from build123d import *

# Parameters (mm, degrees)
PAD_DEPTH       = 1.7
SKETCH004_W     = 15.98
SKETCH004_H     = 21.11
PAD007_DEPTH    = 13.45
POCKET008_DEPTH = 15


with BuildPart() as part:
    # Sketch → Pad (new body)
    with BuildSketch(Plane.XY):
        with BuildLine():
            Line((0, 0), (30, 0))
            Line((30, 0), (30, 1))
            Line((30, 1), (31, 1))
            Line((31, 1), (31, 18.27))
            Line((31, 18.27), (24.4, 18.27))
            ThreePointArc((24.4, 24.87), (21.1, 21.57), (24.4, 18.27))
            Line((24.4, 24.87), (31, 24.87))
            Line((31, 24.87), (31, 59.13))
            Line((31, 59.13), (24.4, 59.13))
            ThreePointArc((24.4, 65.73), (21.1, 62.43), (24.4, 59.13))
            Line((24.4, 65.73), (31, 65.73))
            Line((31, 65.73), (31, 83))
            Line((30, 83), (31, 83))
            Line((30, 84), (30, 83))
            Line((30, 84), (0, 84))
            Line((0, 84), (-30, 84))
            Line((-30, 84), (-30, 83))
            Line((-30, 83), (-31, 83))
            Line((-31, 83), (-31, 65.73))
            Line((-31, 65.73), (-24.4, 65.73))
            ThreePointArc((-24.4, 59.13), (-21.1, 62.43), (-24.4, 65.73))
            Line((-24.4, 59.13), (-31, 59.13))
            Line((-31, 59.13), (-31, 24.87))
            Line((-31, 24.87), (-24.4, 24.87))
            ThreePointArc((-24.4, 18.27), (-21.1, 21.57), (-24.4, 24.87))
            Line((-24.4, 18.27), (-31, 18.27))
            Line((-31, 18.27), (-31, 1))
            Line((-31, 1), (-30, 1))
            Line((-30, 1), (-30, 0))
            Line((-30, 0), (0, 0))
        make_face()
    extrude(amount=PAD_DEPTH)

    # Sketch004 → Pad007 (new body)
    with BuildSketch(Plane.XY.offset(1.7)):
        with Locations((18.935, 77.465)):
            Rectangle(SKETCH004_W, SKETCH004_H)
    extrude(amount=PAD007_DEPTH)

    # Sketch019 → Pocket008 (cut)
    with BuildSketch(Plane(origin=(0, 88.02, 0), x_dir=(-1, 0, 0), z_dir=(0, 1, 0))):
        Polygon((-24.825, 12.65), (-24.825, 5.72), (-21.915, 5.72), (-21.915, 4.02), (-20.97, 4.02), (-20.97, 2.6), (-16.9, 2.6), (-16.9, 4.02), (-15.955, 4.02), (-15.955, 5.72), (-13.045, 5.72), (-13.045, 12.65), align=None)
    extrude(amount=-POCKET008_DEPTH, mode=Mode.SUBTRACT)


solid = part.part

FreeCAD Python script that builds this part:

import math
import FreeCAD as App
import Part
import Sketcher

V = App.Vector
Q = App.Units.Quantity


def add_polygon(sketch, points):
    """Adds a closed chain of lines whose ends are joined by coincident constraints."""
    first, n = sketch.GeometryCount, len(points)
    for a, b in zip(points, points[1:] + points[:1]):
        sketch.addGeometry(Part.LineSegment(App.Vector(*a, 0), App.Vector(*b, 0)), False)
    for i in range(n):
        sketch.addConstraint(Sketcher.Constraint("Coincident", first + i, 2, first + (i + 1) % n, 1))

doc = App.newDocument("Part")
body = doc.addObject("PartDesign::Body", "Body")

# Sketch on XY plane
sketch1 = doc.addObject("Sketcher::SketchObject", "Sketch")
body.addObject(sketch1)
sketch1.AttachmentSupport = (doc.XY_Plane, [""])
sketch1.MapMode = "FlatFace"
sketch1.addGeometry([
    Part.LineSegment(V(30, 0, 0), V(30, 1, 0)),  # 0
    Part.LineSegment(V(30, 1, 0), V(31, 1, 0)),  # 1
    Part.LineSegment(V(31, 1, 0), V(31, 18.3, 0)),  # 2
    Part.LineSegment(V(31, 18.3, 0), V(24.4, 18.3, 0)),  # 3
    Part.ArcOfCircle(Part.Circle(V(24.4, 21.6, 0), V(0, 0, 1), 3.3), math.radians(90), math.radians(270)),  # 4
    Part.LineSegment(V(24.4, 24.9, 0), V(31, 24.9, 0)),  # 5
    Part.LineSegment(V(31, 24.9, 0), V(31, 59.1, 0)),  # 6
    Part.LineSegment(V(31, 59.1, 0), V(24.4, 59.1, 0)),  # 7
    Part.ArcOfCircle(Part.Circle(V(24.4, 62.4, 0), V(0, 0, 1), 3.3), math.radians(90), math.radians(270)),  # 8
    Part.LineSegment(V(24.4, 65.7, 0), V(31, 65.7, 0)),  # 9
    Part.LineSegment(V(31, 65.7, 0), V(31, 83, 0)),  # 10
    Part.LineSegment(V(31, 83, 0), V(30, 83, 0)),  # 11
    Part.LineSegment(V(30, 83, 0), V(30, 84, 0)),  # 12
    Part.LineSegment(V(30, 84, 0), V(-30, 84, 0)),  # 13
    Part.LineSegment(V(-30, 84, 0), V(-30, 83, 0)),  # 14
    Part.LineSegment(V(-30, 83, 0), V(-31, 83, 0)),  # 15
    Part.LineSegment(V(-31, 83, 0), V(-31, 65.7, 0)),  # 16
    Part.LineSegment(V(-31, 65.7, 0), V(-24.4, 65.7, 0)),  # 17
    Part.ArcOfCircle(Part.Circle(V(-24.4, 62.4, 0), V(0, 0, 1), 3.3), math.radians(-90), math.radians(90)),  # 18
    Part.LineSegment(V(-24.4, 59.1, 0), V(-31, 59.1, 0)),  # 19
    Part.LineSegment(V(-31, 59.1, 0), V(-31, 24.9, 0)),  # 20
    Part.LineSegment(V(-31, 24.9, 0), V(-24.4, 24.9, 0)),  # 21
    Part.ArcOfCircle(Part.Circle(V(-24.4, 21.6, 0), V(0, 0, 1), 3.3), math.radians(-90), math.radians(90)),  # 22
    Part.LineSegment(V(-24.4, 18.3, 0), V(-31, 18.3, 0)),  # 23
    Part.LineSegment(V(-31, 18.3, 0), V(-31, 1, 0)),  # 24
    Part.LineSegment(V(-31, 1, 0), V(-30, 1, 0)),  # 25
    Part.LineSegment(V(-30, 1, 0), V(-30, 0, 0)),  # 26
    Part.LineSegment(V(-30, 0, 0), V(30, 0, 0)),  # 27
], False)
sketch1.addConstraint([
    Sketcher.Constraint("Coincident", 0, 2, 1, 1),
    Sketcher.Constraint("Coincident", 1, 2, 2, 1),
    Sketcher.Constraint("Coincident", 2, 2, 3, 1),
    Sketcher.Constraint("Tangent", 3, 2, 4, 2),
    Sketcher.Constraint("Tangent", 4, 1, 5, 1),
    Sketcher.Constraint("Coincident", 5, 2, 6, 1),
    Sketcher.Constraint("Coincident", 6, 2, 7, 1),
    Sketcher.Constraint("Tangent", 7, 2, 8, 2),
    Sketcher.Constraint("Tangent", 8, 1, 9, 1),
    Sketcher.Constraint("Coincident", 9, 2, 10, 1),
    Sketcher.Constraint("Coincident", 10, 2, 11, 1),
    Sketcher.Constraint("Coincident", 11, 2, 12, 1),
    Sketcher.Constraint("Coincident", 12, 2, 13, 1),
    Sketcher.Constraint("Coincident", 13, 2, 14, 1),
    Sketcher.Constraint("Coincident", 14, 2, 15, 1),
    Sketcher.Constraint("Coincident", 15, 2, 16, 1),
    Sketcher.Constraint("Coincident", 16, 2, 17, 1),
    Sketcher.Constraint("Tangent", 17, 2, 18, 2),
    Sketcher.Constraint("Tangent", 18, 1, 19, 1),
    Sketcher.Constraint("Coincident", 19, 2, 20, 1),
    Sketcher.Constraint("Coincident", 20, 2, 21, 1),
    Sketcher.Constraint("Tangent", 21, 2, 22, 2),
    Sketcher.Constraint("Tangent", 22, 1, 23, 1),
    Sketcher.Constraint("Coincident", 23, 2, 24, 1),
    Sketcher.Constraint("Coincident", 24, 2, 25, 1),
    Sketcher.Constraint("Coincident", 25, 2, 26, 1),
    Sketcher.Constraint("Coincident", 26, 2, 27, 1),
    Sketcher.Constraint("Coincident", 27, 2, 0, 1),
    Sketcher.Constraint("Vertical", 0),
    Sketcher.Constraint("Horizontal", 1),
    Sketcher.Constraint("Vertical", 2),
    Sketcher.Constraint("Horizontal", 3),
    Sketcher.Constraint("Horizontal", 5),
    Sketcher.Constraint("Vertical", 6),
    Sketcher.Constraint("Horizontal", 7),
    Sketcher.Constraint("Horizontal", 9),
    Sketcher.Constraint("Vertical", 10),
    Sketcher.Constraint("Horizontal", 11),
    Sketcher.Constraint("Vertical", 12),
    Sketcher.Constraint("Horizontal", 13),
    Sketcher.Constraint("Vertical", 14),
    Sketcher.Constraint("Horizontal", 15),
    Sketcher.Constraint("Vertical", 16),
    Sketcher.Constraint("Horizontal", 17),
    Sketcher.Constraint("Horizontal", 19),
    Sketcher.Constraint("Vertical", 20),
    Sketcher.Constraint("Horizontal", 21),
    Sketcher.Constraint("Horizontal", 23),
    Sketcher.Constraint("Vertical", 24),
    Sketcher.Constraint("Horizontal", 25),
    Sketcher.Constraint("Vertical", 26),
    Sketcher.Constraint("Horizontal", 27),
    Sketcher.Constraint("Equal", 4, 8),
    Sketcher.Constraint("Equal", 8, 18),
    Sketcher.Constraint("Equal", 18, 22),
    Sketcher.Constraint("Symmetric", 26, 2, 27, 2, -1, 1),
    Sketcher.Constraint("Symmetric", 8, 3, 18, 3, -2),
    Sketcher.Constraint("Symmetric", 4, 3, 22, 3, -2),
    Sketcher.Constraint("Symmetric", 11, 2, 14, 2, -2),
    Sketcher.Constraint("Symmetric", 1, 2, 24, 2, -2),
    Sketcher.Constraint("Vertical", 4, 3, 8, 3),
    Sketcher.Constraint("Vertical", 2, 2, 5, 2),
    Sketcher.Constraint("Vertical", 6, 2, 9, 2),
    Sketcher.Constraint("Vertical", 0, 2, 11, 2),
    Sketcher.Constraint("Vertical", 16, 2, 19, 2),
    Sketcher.Constraint("Vertical", 20, 2, 23, 2),
    Sketcher.Constraint("Equal", 25, 0),
    Sketcher.Constraint("Equal", 2, 10),
    Sketcher.Constraint("Equal", 0, 12),
    Sketcher.Constraint("Radius", 4, Q("3.3 mm")),
    Sketcher.Constraint("DistanceX", 1, 1, 1, 2, Q("1 mm")),
    Sketcher.Constraint("DistanceX", 13, 2, 13, 1, Q("60 mm")),
    Sketcher.Constraint("DistanceX", 3, 2, 3, 1, Q("6.6 mm")),
    Sketcher.Constraint("DistanceY", -1, 1, 10, 2, Q("83 mm")),
    Sketcher.Constraint("DistanceY", 2, 1, 2, 2, Q("17.27 mm")),
])
pad1 = doc.addObject("PartDesign::Pad", "Pad")
body.addObject(pad1)
pad1.Profile = sketch1
pad1.Length = 1.7

# Sketch on XY plane
sketch2 = doc.addObject("Sketcher::SketchObject", "Sketch001")
body.addObject(sketch2)
sketch2.AttachmentSupport = (doc.XY_Plane, [""])
sketch2.MapMode = "FlatFace"
sketch2.AttachmentOffset = App.Placement(V(0, 0, 1.7), App.Rotation())
add_polygon(sketch2, [(11, 88), (11, 67), (27, 67), (27, 88)])  # lines 0-3
sketch2.addConstraint([
    Sketcher.Constraint("Vertical", 0),
    Sketcher.Constraint("Horizontal", 1),
    Sketcher.Constraint("Vertical", 2),
    Sketcher.Constraint("Horizontal", 3),
    Sketcher.Constraint("DistanceX", 1, 1, 1, 2, Q("15.98 mm")),
    Sketcher.Constraint("DistanceY", 0, 2, 0, 1, Q("21.11 mm")),
    Sketcher.Constraint("DistanceY", -1, 1, 0, 2, Q("66.91 mm")),
    Sketcher.Constraint("DistanceX", -1, 1, 0, 2, Q("10.945 mm")),
])
pad2 = doc.addObject("PartDesign::Pad", "Pad001")
body.addObject(pad2)
pad2.Profile = sketch2
pad2.Length = 13.45

# Sketch on XZ plane
sketch3 = doc.addObject("Sketcher::SketchObject", "Sketch002")
body.addObject(sketch3)
sketch3.AttachmentSupport = (doc.XZ_Plane, [""])
sketch3.MapMode = "FlatFace"
sketch3.AttachmentOffset = App.Placement(V(0, 0, -88.02), App.Rotation())
add_polygon(sketch3, [(24.8, 12.7), (24.8, 5.7), (21.9, 5.7), (21.9, 4), (21, 4), (21, 2.6), (16.9, 2.6), (16.9, 4), (16, 4), (16, 5.7), (13, 5.7), (13, 12.7)])  # lines 0-11
sketch3.addConstraint([
    Sketcher.Constraint("Vertical", 0),
    Sketcher.Constraint("Horizontal", 1),
    Sketcher.Constraint("Vertical", 2),
    Sketcher.Constraint("Horizontal", 3),
    Sketcher.Constraint("Vertical", 4),
    Sketcher.Constraint("Horizontal", 5),
    Sketcher.Constraint("Vertical", 6),
    Sketcher.Constraint("Horizontal", 7),
    Sketcher.Constraint("Vertical", 8),
    Sketcher.Constraint("Horizontal", 9),
    Sketcher.Constraint("Vertical", 10),
    Sketcher.Constraint("Horizontal", 11),
    Sketcher.Constraint("Horizontal", 3, 2, 6, 2),
    Sketcher.Constraint("Horizontal", 1, 2, 8, 2),
    Sketcher.Constraint("Equal", 3, 7),
    Sketcher.Constraint("Equal", 1, 9),
    Sketcher.Constraint("DistanceY", 2, 2, 2, 1, Q("1.7 mm")),
    Sketcher.Constraint("DistanceX", 1, 2, 1, 1, Q("2.91 mm")),
    Sketcher.Constraint("DistanceX", 5, 2, 5, 1, Q("4.07 mm")),
    Sketcher.Constraint("DistanceX", 11, 1, 11, 2, Q("11.78 mm")),
    Sketcher.Constraint("DistanceY", 0, 2, 0, 1, Q("6.93 mm")),
    Sketcher.Constraint("DistanceY", 4, 2, 4, 1, Q("1.42 mm")),
    Sketcher.Constraint("DistanceY", -1, 1, 4, 2, Q("2.6 mm")),
    Sketcher.Constraint("DistanceX", -1, 1, 5, 2, Q("16.9 mm")),
])
pocket1 = doc.addObject("PartDesign::Pocket", "Pocket")
body.addObject(pocket1)
pocket1.Profile = sketch3
pocket1.Length = 15
pocket1.Reversed = True

doc.recompute()
